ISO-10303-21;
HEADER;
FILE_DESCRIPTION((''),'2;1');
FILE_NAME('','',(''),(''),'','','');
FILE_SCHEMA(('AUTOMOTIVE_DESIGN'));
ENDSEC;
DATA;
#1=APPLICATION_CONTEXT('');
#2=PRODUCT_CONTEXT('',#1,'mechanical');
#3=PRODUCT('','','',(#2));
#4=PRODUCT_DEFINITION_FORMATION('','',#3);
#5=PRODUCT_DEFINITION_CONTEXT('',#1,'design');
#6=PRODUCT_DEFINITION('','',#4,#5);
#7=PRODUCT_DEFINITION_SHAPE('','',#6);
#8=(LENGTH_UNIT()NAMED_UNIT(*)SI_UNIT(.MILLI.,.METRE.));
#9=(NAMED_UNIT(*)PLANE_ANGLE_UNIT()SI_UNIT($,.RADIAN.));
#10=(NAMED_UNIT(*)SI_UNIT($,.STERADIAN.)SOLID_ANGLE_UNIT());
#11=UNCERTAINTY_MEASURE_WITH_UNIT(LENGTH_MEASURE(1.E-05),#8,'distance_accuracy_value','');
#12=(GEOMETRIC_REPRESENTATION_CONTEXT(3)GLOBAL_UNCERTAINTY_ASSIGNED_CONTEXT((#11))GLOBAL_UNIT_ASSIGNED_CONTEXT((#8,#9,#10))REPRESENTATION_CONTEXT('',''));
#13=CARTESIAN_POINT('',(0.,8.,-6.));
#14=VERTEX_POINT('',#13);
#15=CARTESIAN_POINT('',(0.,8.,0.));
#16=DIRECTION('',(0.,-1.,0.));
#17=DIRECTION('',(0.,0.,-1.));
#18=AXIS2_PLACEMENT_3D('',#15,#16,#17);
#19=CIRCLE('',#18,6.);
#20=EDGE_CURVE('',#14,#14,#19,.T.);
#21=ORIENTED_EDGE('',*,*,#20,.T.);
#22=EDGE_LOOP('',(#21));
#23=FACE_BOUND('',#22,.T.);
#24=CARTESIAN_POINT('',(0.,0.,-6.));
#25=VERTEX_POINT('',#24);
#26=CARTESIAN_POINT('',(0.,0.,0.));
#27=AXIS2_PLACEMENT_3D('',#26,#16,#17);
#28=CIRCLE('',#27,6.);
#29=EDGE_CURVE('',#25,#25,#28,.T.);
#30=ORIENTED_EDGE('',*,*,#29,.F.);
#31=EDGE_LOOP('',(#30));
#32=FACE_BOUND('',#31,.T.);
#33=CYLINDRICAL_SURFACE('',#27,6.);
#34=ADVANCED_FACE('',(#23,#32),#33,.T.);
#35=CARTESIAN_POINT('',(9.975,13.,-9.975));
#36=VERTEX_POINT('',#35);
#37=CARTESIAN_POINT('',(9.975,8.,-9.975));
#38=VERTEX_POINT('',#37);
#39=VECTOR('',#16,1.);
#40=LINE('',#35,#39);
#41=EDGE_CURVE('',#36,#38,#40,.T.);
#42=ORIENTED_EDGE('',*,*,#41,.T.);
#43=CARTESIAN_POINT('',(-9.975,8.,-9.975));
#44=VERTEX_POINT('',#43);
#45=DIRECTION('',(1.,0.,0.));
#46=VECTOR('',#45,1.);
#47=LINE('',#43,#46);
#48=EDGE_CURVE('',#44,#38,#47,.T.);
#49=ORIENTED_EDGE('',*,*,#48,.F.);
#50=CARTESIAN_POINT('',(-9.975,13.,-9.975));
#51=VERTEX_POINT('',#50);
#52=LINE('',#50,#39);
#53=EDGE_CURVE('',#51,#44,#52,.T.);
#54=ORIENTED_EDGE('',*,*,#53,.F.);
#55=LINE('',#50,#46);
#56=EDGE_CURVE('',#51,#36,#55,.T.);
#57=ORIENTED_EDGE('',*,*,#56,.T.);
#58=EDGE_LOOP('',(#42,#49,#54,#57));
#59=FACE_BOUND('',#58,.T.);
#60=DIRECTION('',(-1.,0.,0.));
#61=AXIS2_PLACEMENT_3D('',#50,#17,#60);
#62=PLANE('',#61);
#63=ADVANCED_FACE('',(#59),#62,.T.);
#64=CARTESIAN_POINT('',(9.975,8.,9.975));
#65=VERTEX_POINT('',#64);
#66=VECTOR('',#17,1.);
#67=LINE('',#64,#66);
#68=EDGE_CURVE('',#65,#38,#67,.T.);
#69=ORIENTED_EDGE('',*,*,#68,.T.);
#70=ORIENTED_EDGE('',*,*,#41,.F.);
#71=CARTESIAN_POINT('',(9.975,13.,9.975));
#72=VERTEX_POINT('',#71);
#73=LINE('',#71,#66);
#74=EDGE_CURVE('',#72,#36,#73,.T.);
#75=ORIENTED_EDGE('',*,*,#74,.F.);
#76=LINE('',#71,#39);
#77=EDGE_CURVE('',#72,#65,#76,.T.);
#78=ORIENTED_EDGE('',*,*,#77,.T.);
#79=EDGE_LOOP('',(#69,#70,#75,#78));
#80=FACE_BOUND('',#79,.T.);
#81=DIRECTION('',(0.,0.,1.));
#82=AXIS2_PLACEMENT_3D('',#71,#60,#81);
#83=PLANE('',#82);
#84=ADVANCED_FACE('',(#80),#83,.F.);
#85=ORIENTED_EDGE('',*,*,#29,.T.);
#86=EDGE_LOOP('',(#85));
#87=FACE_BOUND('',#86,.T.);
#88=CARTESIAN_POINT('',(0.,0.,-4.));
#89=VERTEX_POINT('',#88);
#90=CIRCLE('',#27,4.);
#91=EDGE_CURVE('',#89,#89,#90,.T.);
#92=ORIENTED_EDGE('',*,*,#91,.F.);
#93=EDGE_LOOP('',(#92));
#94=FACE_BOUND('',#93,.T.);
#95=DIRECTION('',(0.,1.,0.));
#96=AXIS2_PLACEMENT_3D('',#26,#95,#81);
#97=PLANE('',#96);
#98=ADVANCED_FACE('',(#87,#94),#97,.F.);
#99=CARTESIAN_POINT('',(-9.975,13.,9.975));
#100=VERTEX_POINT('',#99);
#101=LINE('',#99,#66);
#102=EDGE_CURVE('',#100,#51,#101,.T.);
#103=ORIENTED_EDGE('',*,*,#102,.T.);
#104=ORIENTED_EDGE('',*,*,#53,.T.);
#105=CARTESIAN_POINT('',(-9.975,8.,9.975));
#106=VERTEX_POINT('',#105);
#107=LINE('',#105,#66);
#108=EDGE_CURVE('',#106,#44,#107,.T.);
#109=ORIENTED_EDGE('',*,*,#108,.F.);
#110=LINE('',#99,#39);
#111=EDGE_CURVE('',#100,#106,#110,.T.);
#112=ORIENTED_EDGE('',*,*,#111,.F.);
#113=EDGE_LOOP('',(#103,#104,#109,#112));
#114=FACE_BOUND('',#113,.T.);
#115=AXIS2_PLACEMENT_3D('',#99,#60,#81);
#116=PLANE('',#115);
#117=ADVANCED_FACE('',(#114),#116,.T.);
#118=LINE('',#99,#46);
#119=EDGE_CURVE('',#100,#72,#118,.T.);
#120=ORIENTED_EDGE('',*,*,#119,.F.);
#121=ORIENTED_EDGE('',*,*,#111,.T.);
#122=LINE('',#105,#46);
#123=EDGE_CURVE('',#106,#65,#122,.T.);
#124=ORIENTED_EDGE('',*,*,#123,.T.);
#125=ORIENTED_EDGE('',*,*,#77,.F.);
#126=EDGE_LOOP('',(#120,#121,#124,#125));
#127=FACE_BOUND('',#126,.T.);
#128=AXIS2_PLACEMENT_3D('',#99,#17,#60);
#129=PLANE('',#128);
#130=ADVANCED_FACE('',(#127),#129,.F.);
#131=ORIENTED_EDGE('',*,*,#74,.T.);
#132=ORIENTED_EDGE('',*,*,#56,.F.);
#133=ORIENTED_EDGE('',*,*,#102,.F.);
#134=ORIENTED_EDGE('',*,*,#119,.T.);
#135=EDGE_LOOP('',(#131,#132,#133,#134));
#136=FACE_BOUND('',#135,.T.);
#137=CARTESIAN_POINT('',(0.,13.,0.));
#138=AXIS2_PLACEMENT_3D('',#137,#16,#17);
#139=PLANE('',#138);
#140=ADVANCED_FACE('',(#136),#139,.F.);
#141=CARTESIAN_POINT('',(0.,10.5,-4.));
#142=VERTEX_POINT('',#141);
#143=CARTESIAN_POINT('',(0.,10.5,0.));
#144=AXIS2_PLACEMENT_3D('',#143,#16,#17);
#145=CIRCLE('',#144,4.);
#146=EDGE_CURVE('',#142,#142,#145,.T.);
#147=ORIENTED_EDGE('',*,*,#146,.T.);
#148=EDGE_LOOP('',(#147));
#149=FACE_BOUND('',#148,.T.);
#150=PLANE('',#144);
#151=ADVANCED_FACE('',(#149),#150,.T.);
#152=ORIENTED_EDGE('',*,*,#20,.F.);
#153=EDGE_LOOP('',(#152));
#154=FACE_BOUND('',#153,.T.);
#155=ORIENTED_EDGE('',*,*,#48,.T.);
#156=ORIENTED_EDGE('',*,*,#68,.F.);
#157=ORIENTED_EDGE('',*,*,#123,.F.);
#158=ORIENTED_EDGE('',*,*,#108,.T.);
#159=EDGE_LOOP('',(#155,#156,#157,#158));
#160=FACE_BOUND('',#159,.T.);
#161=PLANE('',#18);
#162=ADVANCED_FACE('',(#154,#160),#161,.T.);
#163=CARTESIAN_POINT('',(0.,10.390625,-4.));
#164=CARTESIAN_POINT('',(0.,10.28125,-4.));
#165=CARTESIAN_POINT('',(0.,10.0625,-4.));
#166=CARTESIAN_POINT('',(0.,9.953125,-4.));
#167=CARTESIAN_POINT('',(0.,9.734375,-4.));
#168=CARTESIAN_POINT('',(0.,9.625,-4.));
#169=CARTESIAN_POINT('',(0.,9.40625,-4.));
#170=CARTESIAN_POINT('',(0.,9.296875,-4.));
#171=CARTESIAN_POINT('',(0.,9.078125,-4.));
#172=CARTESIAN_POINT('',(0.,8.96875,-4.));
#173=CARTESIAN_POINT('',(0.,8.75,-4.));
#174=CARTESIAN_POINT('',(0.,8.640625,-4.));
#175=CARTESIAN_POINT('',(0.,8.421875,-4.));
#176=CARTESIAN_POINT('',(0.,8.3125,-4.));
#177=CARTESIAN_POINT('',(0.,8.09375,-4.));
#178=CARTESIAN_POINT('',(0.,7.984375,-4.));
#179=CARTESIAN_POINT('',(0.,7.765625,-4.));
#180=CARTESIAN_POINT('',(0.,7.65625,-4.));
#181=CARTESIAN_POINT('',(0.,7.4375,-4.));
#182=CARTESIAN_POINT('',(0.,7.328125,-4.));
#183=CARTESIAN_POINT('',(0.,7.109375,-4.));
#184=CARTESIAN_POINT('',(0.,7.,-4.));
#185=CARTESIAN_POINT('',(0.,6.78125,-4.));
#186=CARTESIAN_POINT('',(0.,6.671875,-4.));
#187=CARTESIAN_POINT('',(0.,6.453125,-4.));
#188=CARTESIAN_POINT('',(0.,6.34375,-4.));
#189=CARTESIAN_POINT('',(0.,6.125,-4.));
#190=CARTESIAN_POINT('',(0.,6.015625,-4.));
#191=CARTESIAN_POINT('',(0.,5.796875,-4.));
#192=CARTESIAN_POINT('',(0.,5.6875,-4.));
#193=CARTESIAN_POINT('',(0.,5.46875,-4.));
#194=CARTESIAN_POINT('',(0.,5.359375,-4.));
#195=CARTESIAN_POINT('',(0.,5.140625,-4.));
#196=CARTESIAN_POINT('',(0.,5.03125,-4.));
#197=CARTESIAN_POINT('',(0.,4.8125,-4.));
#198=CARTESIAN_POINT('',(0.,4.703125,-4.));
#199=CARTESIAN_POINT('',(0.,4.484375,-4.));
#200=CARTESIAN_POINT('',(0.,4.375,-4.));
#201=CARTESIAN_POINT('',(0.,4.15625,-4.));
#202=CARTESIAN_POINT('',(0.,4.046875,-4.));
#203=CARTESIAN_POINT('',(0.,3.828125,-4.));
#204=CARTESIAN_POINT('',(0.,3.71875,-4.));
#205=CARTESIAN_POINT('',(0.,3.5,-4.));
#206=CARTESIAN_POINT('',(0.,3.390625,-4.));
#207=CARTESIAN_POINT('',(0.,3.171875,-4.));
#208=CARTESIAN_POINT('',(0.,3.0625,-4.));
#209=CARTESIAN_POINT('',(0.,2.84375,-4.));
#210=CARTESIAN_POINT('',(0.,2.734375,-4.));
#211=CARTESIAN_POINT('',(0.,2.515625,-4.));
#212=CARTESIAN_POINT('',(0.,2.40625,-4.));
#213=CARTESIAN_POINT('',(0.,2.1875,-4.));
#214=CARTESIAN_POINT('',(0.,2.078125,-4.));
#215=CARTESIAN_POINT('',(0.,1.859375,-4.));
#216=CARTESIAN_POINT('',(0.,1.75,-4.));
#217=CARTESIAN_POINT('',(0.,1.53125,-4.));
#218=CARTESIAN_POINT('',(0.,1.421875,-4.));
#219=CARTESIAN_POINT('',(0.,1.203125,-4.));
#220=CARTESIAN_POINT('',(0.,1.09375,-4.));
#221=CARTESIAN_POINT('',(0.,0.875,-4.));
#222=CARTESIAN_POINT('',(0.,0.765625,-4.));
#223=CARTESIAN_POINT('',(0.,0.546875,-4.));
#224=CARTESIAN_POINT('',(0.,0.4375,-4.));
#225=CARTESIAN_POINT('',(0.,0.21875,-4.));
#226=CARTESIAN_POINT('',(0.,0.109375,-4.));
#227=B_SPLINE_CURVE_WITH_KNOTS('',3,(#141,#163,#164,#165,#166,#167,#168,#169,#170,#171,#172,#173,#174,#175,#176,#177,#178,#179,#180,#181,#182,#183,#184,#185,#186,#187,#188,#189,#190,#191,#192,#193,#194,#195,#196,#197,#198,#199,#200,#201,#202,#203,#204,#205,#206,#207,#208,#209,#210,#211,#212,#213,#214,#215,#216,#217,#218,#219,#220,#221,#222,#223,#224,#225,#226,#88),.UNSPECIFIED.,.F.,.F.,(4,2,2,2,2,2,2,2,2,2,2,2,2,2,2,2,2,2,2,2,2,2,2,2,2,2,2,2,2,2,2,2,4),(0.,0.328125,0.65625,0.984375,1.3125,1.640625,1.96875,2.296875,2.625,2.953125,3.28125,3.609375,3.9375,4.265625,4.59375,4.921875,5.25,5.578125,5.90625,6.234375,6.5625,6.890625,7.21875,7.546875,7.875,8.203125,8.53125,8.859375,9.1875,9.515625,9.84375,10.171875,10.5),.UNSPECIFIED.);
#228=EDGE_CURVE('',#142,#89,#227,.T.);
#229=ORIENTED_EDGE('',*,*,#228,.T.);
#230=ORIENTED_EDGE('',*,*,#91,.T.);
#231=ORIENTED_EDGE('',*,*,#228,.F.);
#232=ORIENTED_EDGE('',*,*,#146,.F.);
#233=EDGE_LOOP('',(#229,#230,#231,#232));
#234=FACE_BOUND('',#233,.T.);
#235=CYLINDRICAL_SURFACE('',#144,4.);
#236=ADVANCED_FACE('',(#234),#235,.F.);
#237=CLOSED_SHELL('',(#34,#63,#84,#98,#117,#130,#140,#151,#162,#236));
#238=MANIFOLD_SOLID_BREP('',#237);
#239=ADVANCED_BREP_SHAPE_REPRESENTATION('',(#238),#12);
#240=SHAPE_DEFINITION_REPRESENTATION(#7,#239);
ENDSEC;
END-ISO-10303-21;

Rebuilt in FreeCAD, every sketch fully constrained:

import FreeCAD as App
import Part
import Sketcher
from FreeCAD import Vector

doc = App.newDocument("Part")
params = doc.addObject("Spreadsheet::Sheet", "Params")
for row, (alias, value) in enumerate([
    ("sketch1_width", "8 mm"),
    ("sketch1_height", "6 mm"),
    ("revolution_angle", "360 deg"),
    ("sketch2_width", "19.95 mm"),
    ("pad1_length", "5 mm"),
    ("sketch3_diameter", "8 mm"),
    ("pocket1_length", "10.5 mm"),
], start=1):
    params.set(f"A{row}", alias)
    params.set(f"B{row}", "=" + value)
    params.setAlias(f"B{row}", alias)

body = doc.addObject("PartDesign::Body", "Body")

# Sketch on YZ plane
sketch1 = doc.addObject("Sketcher::SketchObject", "Sketch")
body.addObject(sketch1)
sketch1.AttachmentSupport = (doc.YZ_Plane, [""])
sketch1.MapMode = "FlatFace"
sketch1.addGeometry(Part.LineSegment(Vector(8, 6, 0), Vector(0, 6, 0)), False)
sketch1.addGeometry(Part.LineSegment(Vector(0, 6, 0), Vector(0, 0, 0)), False)
sketch1.addGeometry(Part.LineSegment(Vector(0, 0, 0), Vector(8, 0, 0)), False)
sketch1.addGeometry(Part.LineSegment(Vector(8, 0, 0), Vector(8, 6, 0)), False)
sketch1.addConstraint(Sketcher.Constraint("Coincident", 0, 2, 1, 1))
sketch1.addConstraint(Sketcher.Constraint("Coincident", 1, 2, 2, 1))
sketch1.addConstraint(Sketcher.Constraint("Coincident", 2, 2, 3, 1))
sketch1.addConstraint(Sketcher.Constraint("Coincident", 3, 2, 0, 1))
sketch1.addConstraint(Sketcher.Constraint("Horizontal", 0))
sketch1.addConstraint(Sketcher.Constraint("Vertical", 1))
sketch1.addConstraint(Sketcher.Constraint("Horizontal", 2))
sketch1.addConstraint(Sketcher.Constraint("Vertical", 3))
sketch1.addConstraint(Sketcher.Constraint("Coincident", 1, 2, -1, 1))
sketch1.addConstraint(Sketcher.Constraint("DistanceX", 0, 2, 0, 1, 8.0))
sketch1.addConstraint(Sketcher.Constraint("DistanceY", 1, 2, 1, 1, 6.0))
sketch1.setExpression("Constraints[9]", "Params.sketch1_width")
sketch1.setExpression("Constraints[10]", "Params.sketch1_height")
revolution = doc.addObject("PartDesign::Revolution", "Revolution")
body.addObject(revolution)
revolution.Profile = sketch1
revolution.ReferenceAxis = (sketch1, ["H_Axis"])
revolution.setExpression("Angle", "Params.revolution_angle")

# Sketch on XZ plane
sketch2 = doc.addObject("Sketcher::SketchObject", "Sketch001")
body.addObject(sketch2)
sketch2.AttachmentSupport = (doc.XZ_Plane, [""])
sketch2.MapMode = "FlatFace"
sketch2.AttachmentOffset = App.Placement(Vector(0, 0, -8), App.Rotation())
sketch2.addGeometry(Part.LineSegment(Vector(-9.975, -9.975, 0), Vector(-9.975, 9.975, 0)), False)
sketch2.addGeometry(Part.LineSegment(Vector(-9.975, 9.975, 0), Vector(9.975, 9.975, 0)), False)
sketch2.addGeometry(Part.LineSegment(Vector(9.975, 9.975, 0), Vector(9.975, -9.975, 0)), False)
sketch2.addGeometry(Part.LineSegment(Vector(9.975, -9.975, 0), Vector(-9.975, -9.975, 0)), False)
sketch2.addConstraint(Sketcher.Constraint("Coincident", 0, 2, 1, 1))
sketch2.addConstraint(Sketcher.Constraint("Coincident", 1, 2, 2, 1))
sketch2.addConstraint(Sketcher.Constraint("Coincident", 2, 2, 3, 1))
sketch2.addConstraint(Sketcher.Constraint("Coincident", 3, 2, 0, 1))
sketch2.addConstraint(Sketcher.Constraint("Vertical", 0))
sketch2.addConstraint(Sketcher.Constraint("Horizontal", 1))
sketch2.addConstraint(Sketcher.Constraint("Vertical", 2))
sketch2.addConstraint(Sketcher.Constraint("Horizontal", 3))
sketch2.addConstraint(Sketcher.Constraint("Symmetric", 0, 2, 2, 2, -1, 1))
sketch2.addConstraint(Sketcher.Constraint("Equal", 3, 0))
sketch2.addConstraint(Sketcher.Constraint("DistanceX", 1, 1, 1, 2, 19.95))
sketch2.setExpression("Constraints[10]", "Params.sketch2_width")
pad1 = doc.addObject("PartDesign::Pad", "Pad")
body.addObject(pad1)
pad1.Profile = sketch2
pad1.setExpression("Length", "Params.pad1_length")
pad1.Reversed = True

# Sketch on XZ plane
sketch3 = doc.addObject("Sketcher::SketchObject", "Sketch002")
body.addObject(sketch3)
sketch3.AttachmentSupport = (doc.XZ_Plane, [""])
sketch3.MapMode = "FlatFace"
sketch3.addGeometry(Part.Circle(Vector(0, 0, 0), Vector(0, 0, 1), 4), False)
sketch3.addConstraint(Sketcher.Constraint("Coincident", 0, 3, -1, 1))
sketch3.addConstraint(Sketcher.Constraint("Diameter", 0, 8.0))
sketch3.setExpression("Constraints[1]", "Params.sketch3_diameter")
pocket1 = doc.addObject("PartDesign::Pocket", "Pocket")
body.addObject(pocket1)
pocket1.Profile = sketch3
pocket1.setExpression("Length", "Params.pocket1_length")

doc.recompute()
